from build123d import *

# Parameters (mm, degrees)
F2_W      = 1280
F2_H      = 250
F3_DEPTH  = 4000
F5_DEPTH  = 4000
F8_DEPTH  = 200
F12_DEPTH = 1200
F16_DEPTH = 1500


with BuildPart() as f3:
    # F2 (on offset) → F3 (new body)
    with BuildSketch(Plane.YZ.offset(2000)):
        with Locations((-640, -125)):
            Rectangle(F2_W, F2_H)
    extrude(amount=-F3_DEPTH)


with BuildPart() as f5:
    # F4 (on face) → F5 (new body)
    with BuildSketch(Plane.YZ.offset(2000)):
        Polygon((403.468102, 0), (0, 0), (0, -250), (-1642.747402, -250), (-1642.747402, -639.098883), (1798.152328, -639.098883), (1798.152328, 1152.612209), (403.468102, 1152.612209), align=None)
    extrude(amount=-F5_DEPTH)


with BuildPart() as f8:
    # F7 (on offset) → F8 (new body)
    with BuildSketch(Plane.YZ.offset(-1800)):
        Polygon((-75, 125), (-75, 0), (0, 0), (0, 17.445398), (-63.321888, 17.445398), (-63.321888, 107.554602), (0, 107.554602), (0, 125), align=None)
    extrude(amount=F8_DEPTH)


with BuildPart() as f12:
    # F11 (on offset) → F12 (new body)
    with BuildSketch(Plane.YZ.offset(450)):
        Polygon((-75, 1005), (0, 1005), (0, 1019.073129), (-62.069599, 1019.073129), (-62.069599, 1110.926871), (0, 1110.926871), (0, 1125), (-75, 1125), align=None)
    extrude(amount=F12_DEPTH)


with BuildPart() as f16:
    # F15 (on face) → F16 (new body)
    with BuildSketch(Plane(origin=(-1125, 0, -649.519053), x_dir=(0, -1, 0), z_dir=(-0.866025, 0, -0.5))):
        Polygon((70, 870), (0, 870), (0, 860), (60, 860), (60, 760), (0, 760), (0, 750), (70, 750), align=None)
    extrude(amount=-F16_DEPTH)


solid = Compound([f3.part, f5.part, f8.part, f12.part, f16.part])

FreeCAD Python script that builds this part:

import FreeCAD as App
import Part
import Sketcher

V = App.Vector

doc = App.newDocument("Part")
body = doc.addObject("PartDesign::Body", "Body")

# Sketch on YZ plane
sketch1 = doc.addObject("Sketcher::SketchObject", "Sketch")
body.addObject(sketch1)
sketch1.AttachmentSupport = (doc.YZ_Plane, [""])
sketch1.MapMode = "FlatFace"
sketch1.AttachmentOffset = App.Placement(V(0, 0, 2000), App.Rotation())
sketch1.addGeometry([
    Part.LineSegment(V(-1280, 0, 0), V(-1280, -250, 0)),
    Part.LineSegment(V(-1280, -250, 0), V(0, -250, 0)),
    Part.LineSegment(V(0, -250, 0), V(0, 0, 0)),
    Part.LineSegment(V(0, 0, 0), V(-1280, 0, 0)),
], False)
sketch1.addConstraint([
    Sketcher.Constraint("Coincident", 0, 2, 1, 1),
    Sketcher.Constraint("Coincident", 1, 2, 2, 1),
    Sketcher.Constraint("Coincident", 2, 2, 3, 1),
    Sketcher.Constraint("Coincident", 3, 2, 0, 1),
    Sketcher.Constraint("Vertical", 0),
    Sketcher.Constraint("Horizontal", 1),
    Sketcher.Constraint("Vertical", 2),
    Sketcher.Constraint("Horizontal", 3),
    Sketcher.Constraint("Coincident", 2, 2, -1, 1),
    Sketcher.Constraint("DistanceX", 1, 1, 1, 2, 1280.0),
    Sketcher.Constraint("DistanceY", 0, 2, 0, 1, 250.0),
])
pad1 = doc.addObject("PartDesign::Pad", "Pad")
body.addObject(pad1)
pad1.Profile = sketch1
pad1.Length = 4000
pad1.Reversed = True
body2 = doc.addObject("PartDesign::Body", "Body001")

# Sketch on YZ plane
sketch2 = doc.addObject("Sketcher::SketchObject", "Sketch001")
body2.addObject(sketch2)
sketch2.AttachmentSupport = (doc.getObject("YZ_Plane001"), [""])
sketch2.MapMode = "FlatFace"
sketch2.AttachmentOffset = App.Placement(V(0, 0, 2000), App.Rotation())
sketch2.addGeometry([
    Part.LineSegment(V(403, 0, 0), V(0, 0, 0)),  # 0
    Part.LineSegment(V(0, 0, 0), V(0, -250, 0)),  # 1
    Part.LineSegment(V(0, -250, 0), V(-1643, -250, 0)),  # 2
    Part.LineSegment(V(-1643, -250, 0), V(-1643, -639, 0)),  # 3
    Part.LineSegment(V(-1643, -639, 0), V(1798, -639, 0)),  # 4
    Part.LineSegment(V(1798, -639, 0), V(1798, 1153, 0)),  # 5
    Part.LineSegment(V(1798, 1153, 0), V(403, 1153, 0)),  # 6
    Part.LineSegment(V(403, 1153, 0), V(403, 0, 0)),  # 7
], False)
sketch2.addConstraint([
    Sketcher.Constraint("Coincident", 0, 2, 1, 1),
    Sketcher.Constraint("Coincident", 1, 2, 2, 1),
    Sketcher.Constraint("Coincident", 2, 2, 3, 1),
    Sketcher.Constraint("Coincident", 3, 2, 4, 1),
    Sketcher.Constraint("Coincident", 4, 2, 5, 1),
    Sketcher.Constraint("Coincident", 5, 2, 6, 1),
    Sketcher.Constraint("Coincident", 6, 2, 7, 1),
    Sketcher.Constraint("Coincident", 7, 2, 0, 1),
    Sketcher.Constraint("Horizontal", 0),
    Sketcher.Constraint("Vertical", 1),
    Sketcher.Constraint("Horizontal", 2),
    Sketcher.Constraint("Vertical", 3),
    Sketcher.Constraint("Horizontal", 4),
    Sketcher.Constraint("Vertical", 5),
    Sketcher.Constraint("Horizontal", 6),
    Sketcher.Constraint("Vertical", 7),
    Sketcher.Constraint("Coincident", 0, 2, -1, 1),
    Sketcher.Constraint("DistanceY", 1, 2, 1, 1, 250.0),
    Sketcher.Constraint("DistanceX", 0, 2, 0, 1, 403.468102),
    Sketcher.Constraint("DistanceX", 2, 2, 2, 1, 1642.747402),
    Sketcher.Constraint("DistanceX", 4, 1, 4, 2, 3440.89973),
    Sketcher.Constraint("DistanceY", 5, 1, 5, 2, 1791.711092),
    Sketcher.Constraint("DistanceY", 7, 2, 7, 1, 1152.612209),
])
pad2 = doc.addObject("PartDesign::Pad", "Pad001")
body2.addObject(pad2)
pad2.Profile = sketch2
pad2.Length = 4000
pad2.Reversed = True
body3 = doc.addObject("PartDesign::Body", "Body002")

# Sketch on YZ plane
sketch3 = doc.addObject("Sketcher::SketchObject", "Sketch002")
body3.addObject(sketch3)
sketch3.AttachmentSupport = (doc.getObject("YZ_Plane002"), [""])
sketch3.MapMode = "FlatFace"
sketch3.AttachmentOffset = App.Placement(V(0, 0, -1800), App.Rotation())
sketch3.addGeometry([
    Part.LineSegment(V(-75, 125, 0), V(-75, 0, 0)),  # 0
    Part.LineSegment(V(-75, 0, 0), V(0, 0, 0)),  # 1
    Part.LineSegment(V(0, 0, 0), V(0, 17, 0)),  # 2
    Part.LineSegment(V(0, 17, 0), V(-63, 17, 0)),  # 3
    Part.LineSegment(V(-63, 17, 0), V(-63, 108, 0)),  # 4
    Part.LineSegment(V(-63, 108, 0), V(0, 108, 0)),  # 5
    Part.LineSegment(V(0, 108, 0), V(0, 125, 0)),  # 6
    Part.LineSegment(V(0, 125, 0), V(-75, 125, 0)),  # 7
], False)
sketch3.addConstraint([
    Sketcher.Constraint("Coincident", 0, 2, 1, 1),
    Sketcher.Constraint("Coincident", 1, 2, 2, 1),
    Sketcher.Constraint("Coincident", 2, 2, 3, 1),
    Sketcher.Constraint("Coincident", 3, 2, 4, 1),
    Sketcher.Constraint("Coincident", 4, 2, 5, 1),
    Sketcher.Constraint("Coincident", 5, 2, 6, 1),
    Sketcher.Constraint("Coincident", 6, 2, 7, 1),
    Sketcher.Constraint("Coincident", 7, 2, 0, 1),
    Sketcher.Constraint("Vertical", 0),
    Sketcher.Constraint("Horizontal", 1),
    Sketcher.Constraint("Vertical", 2),
    Sketcher.Constraint("Horizontal", 3),
    Sketcher.Constraint("Vertical", 4),
    Sketcher.Constraint("Horizontal", 5),
    Sketcher.Constraint("Vertical", 6),
    Sketcher.Constraint("Horizontal", 7),
    Sketcher.Constraint("Coincident", 1, 2, -1, 1),
    Sketcher.Constraint("PointOnObject", 5, 2, -2),
    Sketcher.Constraint("Equal", 2, 6),
    Sketcher.Constraint("DistanceX", 1, 1, 1, 2, 75.0),
    Sketcher.Constraint("DistanceY", 0, 2, 0, 1, 125.0),
    Sketcher.Constraint("DistanceY", 2, 1, 2, 2, 17.445398),
    Sketcher.Constraint("DistanceX", 3, 2, 3, 1, 63.321888),
])
pad3 = doc.addObject("PartDesign::Pad", "Pad002")
body3.addObject(pad3)
pad3.Profile = sketch3
pad3.Length = 200
body4 = doc.addObject("PartDesign::Body", "Body003")

# Sketch on YZ plane
sketch4 = doc.addObject("Sketcher::SketchObject", "Sketch003")
body4.addObject(sketch4)
sketch4.AttachmentSupport = (doc.getObject("YZ_Plane003"), [""])
sketch4.MapMode = "FlatFace"
sketch4.AttachmentOffset = App.Placement(V(0, 0, 450), App.Rotation())
sketch4.addGeometry([
    Part.LineSegment(V(-75, 1005, 0), V(0, 1005, 0)),  # 0
    Part.LineSegment(V(0, 1005, 0), V(0, 1019, 0)),  # 1
    Part.LineSegment(V(0, 1019, 0), V(-62, 1019, 0)),  # 2
    Part.LineSegment(V(-62, 1019, 0), V(-62, 1111, 0)),  # 3
    Part.LineSegment(V(-62, 1111, 0), V(0, 1111, 0)),  # 4
    Part.LineSegment(V(0, 1111, 0), V(0, 1125, 0)),  # 5
    Part.LineSegment(V(0, 1125, 0), V(-75, 1125, 0)),  # 6
    Part.LineSegment(V(-75, 1125, 0), V(-75, 1005, 0)),  # 7
], False)
sketch4.addConstraint([
    Sketcher.Constraint("Coincident", 0, 2, 1, 1),
    Sketcher.Constraint("Coincident", 1, 2, 2, 1),
    Sketcher.Constraint("Coincident", 2, 2, 3, 1),
    Sketcher.Constraint("Coincident", 3, 2, 4, 1),
    Sketcher.Constraint("Coincident", 4, 2, 5, 1),
    Sketcher.Constraint("Coincident", 5, 2, 6, 1),
    Sketcher.Constraint("Coincident", 6, 2, 7, 1),
    Sketcher.Constraint("Coincident", 7, 2, 0, 1),
    Sketcher.Constraint("Horizontal", 0),
    Sketcher.Constraint("Vertical", 1),
    Sketcher.Constraint("Horizontal", 2),
    Sketcher.Constraint("Vertical", 3),
    Sketcher.Constraint("Horizontal", 4),
    Sketcher.Constraint("Vertical", 5),
    Sketcher.Constraint("Horizontal", 6),
    Sketcher.Constraint("Vertical", 7),
    Sketcher.Constraint("PointOnObject", 0, 2, -2),
    Sketcher.Constraint("PointOnObject", 4, 2, -2),
    Sketcher.Constraint("Equal", 1, 5),
    Sketcher.Constraint("DistanceX", 0, 1, 0, 2, 75.0),
    Sketcher.Constraint("DistanceY", 7, 2, 7, 1, 120.0),
    Sketcher.Constraint("DistanceY", -1, 1, 0, 2, 1005.0),
    Sketcher.Constraint("DistanceX", 2, 2, 2, 1, 62.069599),
    Sketcher.Constraint("DistanceY", 1, 1, 1, 2, 14.073129),
])
pad4 = doc.addObject("PartDesign::Pad", "Pad003")
body4.addObject(pad4)
pad4.Profile = sketch4
pad4.Length = 1200
body5 = doc.addObject("PartDesign::Body", "Body004")

# Sketch on an angled plane
sketch5 = doc.addObject("Sketcher::SketchObject", "Sketch004")
body5.addObject(sketch5)
sketch5.Placement = App.Placement(V(-1125, 0, -649.519053), App.Rotation(V(0, -1, 0), V(-0.500000175, 0, 0.866025303), V(-0.866025303, 0, -0.500000175), "ZXY"))
sketch5.addGeometry([
    Part.LineSegment(V(70, 870, 0), V(0, 870, 0)),  # 0
    Part.LineSegment(V(0, 870, 0), V(0, 860, 0)),  # 1
    Part.LineSegment(V(0, 860, 0), V(60, 860, 0)),  # 2
    Part.LineSegment(V(60, 860, 0), V(60, 760, 0)),  # 3
    Part.LineSegment(V(60, 760, 0), V(0, 760, 0)),  # 4
    Part.LineSegment(V(0, 760, 0), V(0, 750, 0)),  # 5
    Part.LineSegment(V(0, 750, 0), V(70, 750, 0)),  # 6
    Part.LineSegment(V(70, 750, 0), V(70, 870, 0)),  # 7
], False)
sketch5.addConstraint([
    Sketcher.Constraint("Coincident", 0, 2, 1, 1),
    Sketcher.Constraint("Coincident", 1, 2, 2, 1),
    Sketcher.Constraint("Coincident", 2, 2, 3, 1),
    Sketcher.Constraint("Coincident", 3, 2, 4, 1),
    Sketcher.Constraint("Coincident", 4, 2, 5, 1),
    Sketcher.Constraint("Coincident", 5, 2, 6, 1),
    Sketcher.Constraint("Coincident", 6, 2, 7, 1),
    Sketcher.Constraint("Coincident", 7, 2, 0, 1),
    Sketcher.Constraint("Horizontal", 0),
    Sketcher.Constraint("Vertical", 1),
    Sketcher.Constraint("Horizontal", 2),
    Sketcher.Constraint("Vertical", 3),
    Sketcher.Constraint("Horizontal", 4),
    Sketcher.Constraint("Vertical", 5),
    Sketcher.Constraint("Horizontal", 6),
    Sketcher.Constraint("Vertical", 7),
    Sketcher.Constraint("PointOnObject", 0, 2, -2),
    Sketcher.Constraint("PointOnObject", 4, 2, -2),
    Sketcher.Constraint("Equal", 1, 5),
    Sketcher.Constraint("DistanceX", 0, 2, 0, 1, 70.0),
    Sketcher.Constraint("DistanceX", 2, 1, 2, 2, 60.0),
    Sketcher.Constraint("DistanceY", 1, 2, 1, 1, 10.0),
    Sketcher.Constraint("DistanceY", 3, 2, 3, 1, 100.0),
    Sketcher.Constraint("DistanceY", -1, 1, 0, 2, 870.0),
])
pad5 = doc.addObject("PartDesign::Pad", "Pad004")
body5.addObject(pad5)
pad5.Profile = sketch5
pad5.Length = 1500
pad5.Reversed = True

doc.recompute()
